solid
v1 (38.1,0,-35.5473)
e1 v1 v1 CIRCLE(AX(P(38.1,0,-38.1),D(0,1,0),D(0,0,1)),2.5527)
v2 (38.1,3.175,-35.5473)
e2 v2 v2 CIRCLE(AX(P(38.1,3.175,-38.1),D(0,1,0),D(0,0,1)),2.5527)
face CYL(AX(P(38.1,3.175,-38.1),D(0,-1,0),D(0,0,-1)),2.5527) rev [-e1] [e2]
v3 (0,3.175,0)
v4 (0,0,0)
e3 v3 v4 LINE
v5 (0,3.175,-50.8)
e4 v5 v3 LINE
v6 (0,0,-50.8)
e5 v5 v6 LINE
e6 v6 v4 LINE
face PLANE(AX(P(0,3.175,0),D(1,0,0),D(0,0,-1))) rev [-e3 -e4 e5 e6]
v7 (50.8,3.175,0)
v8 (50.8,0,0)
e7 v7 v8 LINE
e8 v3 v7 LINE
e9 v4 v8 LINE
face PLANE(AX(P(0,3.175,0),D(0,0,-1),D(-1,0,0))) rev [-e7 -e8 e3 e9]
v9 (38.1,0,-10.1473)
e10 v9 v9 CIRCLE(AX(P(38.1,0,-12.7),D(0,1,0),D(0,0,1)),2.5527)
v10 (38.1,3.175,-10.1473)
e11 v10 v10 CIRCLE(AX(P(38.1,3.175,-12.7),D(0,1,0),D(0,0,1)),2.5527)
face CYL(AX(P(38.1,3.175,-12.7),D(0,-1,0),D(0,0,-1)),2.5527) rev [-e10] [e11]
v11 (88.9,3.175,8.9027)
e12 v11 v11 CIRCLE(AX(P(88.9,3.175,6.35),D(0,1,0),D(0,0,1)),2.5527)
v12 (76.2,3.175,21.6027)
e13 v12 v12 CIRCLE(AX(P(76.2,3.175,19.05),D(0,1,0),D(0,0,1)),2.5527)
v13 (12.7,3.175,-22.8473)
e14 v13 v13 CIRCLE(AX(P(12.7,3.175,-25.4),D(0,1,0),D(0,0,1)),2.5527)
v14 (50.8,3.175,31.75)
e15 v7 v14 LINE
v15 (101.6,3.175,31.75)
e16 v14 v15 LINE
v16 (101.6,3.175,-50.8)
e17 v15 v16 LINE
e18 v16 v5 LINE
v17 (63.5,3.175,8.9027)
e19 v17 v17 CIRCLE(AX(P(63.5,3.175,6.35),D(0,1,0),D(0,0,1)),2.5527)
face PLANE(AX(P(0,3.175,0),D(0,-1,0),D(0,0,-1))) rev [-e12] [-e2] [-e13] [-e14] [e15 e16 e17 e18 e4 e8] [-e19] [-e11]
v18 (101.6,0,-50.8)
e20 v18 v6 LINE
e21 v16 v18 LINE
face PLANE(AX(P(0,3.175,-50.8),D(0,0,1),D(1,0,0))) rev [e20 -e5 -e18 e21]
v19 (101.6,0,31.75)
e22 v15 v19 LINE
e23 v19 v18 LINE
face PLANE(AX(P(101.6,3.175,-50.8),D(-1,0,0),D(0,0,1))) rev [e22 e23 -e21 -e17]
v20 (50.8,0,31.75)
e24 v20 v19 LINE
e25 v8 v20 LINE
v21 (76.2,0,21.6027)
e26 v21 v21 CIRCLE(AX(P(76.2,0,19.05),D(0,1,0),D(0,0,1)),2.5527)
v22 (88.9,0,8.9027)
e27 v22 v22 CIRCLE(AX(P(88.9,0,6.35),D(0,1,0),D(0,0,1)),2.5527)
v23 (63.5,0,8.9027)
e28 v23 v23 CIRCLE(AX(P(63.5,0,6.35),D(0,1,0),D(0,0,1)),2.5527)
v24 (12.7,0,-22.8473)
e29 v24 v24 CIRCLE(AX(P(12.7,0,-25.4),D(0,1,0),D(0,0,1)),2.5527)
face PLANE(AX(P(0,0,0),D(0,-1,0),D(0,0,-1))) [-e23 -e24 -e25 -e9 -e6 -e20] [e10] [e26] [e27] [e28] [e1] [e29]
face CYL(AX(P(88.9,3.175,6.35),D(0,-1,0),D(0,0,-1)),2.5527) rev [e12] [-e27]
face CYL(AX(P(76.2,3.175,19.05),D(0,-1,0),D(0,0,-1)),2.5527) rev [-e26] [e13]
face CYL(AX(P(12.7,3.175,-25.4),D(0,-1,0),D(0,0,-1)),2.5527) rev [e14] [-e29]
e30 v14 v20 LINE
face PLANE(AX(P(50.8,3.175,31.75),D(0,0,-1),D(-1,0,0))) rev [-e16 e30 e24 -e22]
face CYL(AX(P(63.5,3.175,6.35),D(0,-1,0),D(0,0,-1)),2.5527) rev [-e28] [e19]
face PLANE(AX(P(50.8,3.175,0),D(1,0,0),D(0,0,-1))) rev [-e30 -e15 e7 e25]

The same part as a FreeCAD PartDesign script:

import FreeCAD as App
import Part
import Sketcher
from FreeCAD import Vector
Q = App.Units.Quantity


def add_polygon(sketch, points):
    """Adds a closed chain of lines whose ends are joined by coincident constraints."""
    first, n = sketch.GeometryCount, len(points)
    for a, b in zip(points, points[1:] + points[:1]):
        sketch.addGeometry(Part.LineSegment(App.Vector(*a, 0), App.Vector(*b, 0)), False)
    for i in range(n):
        sketch.addConstraint(Sketcher.Constraint("Coincident", first + i, 2, first + (i + 1) % n, 1))

doc = App.newDocument("Part")
body = doc.addObject("PartDesign::Body", "Body")

# Sketch on XZ plane
sketch1 = doc.addObject("Sketcher::SketchObject", "Sketch")
body.addObject(sketch1)
sketch1.AttachmentSupport = (doc.XZ_Plane, [""])
sketch1.MapMode = "FlatFace"
add_polygon(sketch1, [(0, 0), (50.8, 0), (50.8, 31.75), (101.6, 31.75), (101.6, -50.8), (0, -50.8)])  # lines 0-5
sketch1.addGeometry(Part.Circle(Vector(63.5, 6.35, 0), Vector(0, 0, 1), 2.5527), False)  # 6
sketch1.addGeometry(Part.Circle(Vector(76.2, 19.05, 0), Vector(0, 0, 1), 2.5527), False)  # 7
sketch1.addGeometry(Part.Circle(Vector(88.9, 6.35, 0), Vector(0, 0, 1), 2.5527), False)  # 8
sketch1.addGeometry(Part.Circle(Vector(38.1, -12.7, 0), Vector(0, 0, 1), 2.5527), False)  # 9
sketch1.addGeometry(Part.Circle(Vector(12.7, -25.4, 0), Vector(0, 0, 1), 2.5527), False)  # 10
sketch1.addGeometry(Part.Circle(Vector(38.1, -38.1, 0), Vector(0, 0, 1), 2.5527), False)  # 11
sketch1.addConstraint(Sketcher.Constraint("Horizontal", 0))
sketch1.addConstraint(Sketcher.Constraint("Vertical", 1))
sketch1.addConstraint(Sketcher.Constraint("Horizontal", 2))
sketch1.addConstraint(Sketcher.Constraint("Vertical", 3))
sketch1.addConstraint(Sketcher.Constraint("Horizontal", 4))
sketch1.addConstraint(Sketcher.Constraint("Vertical", 5))
sketch1.addConstraint(Sketcher.Constraint("Coincident", 5, 2, -1, 1))
sketch1.addConstraint(Sketcher.Constraint("Equal", 6, 7))
sketch1.addConstraint(Sketcher.Constraint("Equal", 7, 8))
sketch1.addConstraint(Sketcher.Constraint("Equal", 8, 9))
sketch1.addConstraint(Sketcher.Constraint("Equal", 9, 10))
sketch1.addConstraint(Sketcher.Constraint("Equal", 10, 11))
sketch1.addConstraint(Sketcher.Constraint("Horizontal", 6, 3, 8, 3))
sketch1.addConstraint(Sketcher.Constraint("Vertical", 9, 3, 11, 3))
sketch1.addConstraint(Sketcher.Constraint("Equal", 0, 2))
sketch1.addConstraint(Sketcher.Constraint("Equal", 2, 5))
sketch1.addConstraint(Sketcher.Constraint("DistanceX", 0, 1, 0, 2, Q("2 in")))
sketch1.addConstraint(Sketcher.Constraint("Diameter", 6, Q("0.201 in")))
sketch1.addConstraint(Sketcher.Constraint("DistanceX", -1, 1, 7, 3, Q("3 in")))
sketch1.addConstraint(Sketcher.Constraint("DistanceY", 10, 3, -1, 1, Q("1 in")))
sketch1.addConstraint(Sketcher.Constraint("DistanceX", 6, 3, 8, 3, Q("1 in")))
sketch1.addConstraint(Sketcher.Constraint("DistanceX", 9, 3, 6, 3, Q("1 in")))
sketch1.addConstraint(Sketcher.Constraint("DistanceX", 10, 3, 9, 3, Q("1 in")))
sketch1.addConstraint(Sketcher.Constraint("DistanceY", 11, 3, 9, 3, Q("1 in")))
sketch1.addConstraint(Sketcher.Constraint("DistanceY", 6, 3, 1, 2, Q("1 in")))
sketch1.addConstraint(Sketcher.Constraint("DistanceY", 1, 1, 1, 2, Q("1.25 in")))
sketch1.addConstraint(Sketcher.Constraint("DistanceX", -1, 1, 6, 3, Q("2.5 in")))
sketch1.addConstraint(Sketcher.Constraint("DistanceY", 9, 3, -1, 1, Q("0.5 in")))
sketch1.addConstraint(Sketcher.Constraint("DistanceY", 6, 3, 7, 3, Q("0.5 in")))
pad1 = doc.addObject("PartDesign::Pad", "Pad")
body.addObject(pad1)
pad1.Profile = sketch1
pad1.Length = Q("0.125 in")
pad1.Reversed = True

doc.recompute()
